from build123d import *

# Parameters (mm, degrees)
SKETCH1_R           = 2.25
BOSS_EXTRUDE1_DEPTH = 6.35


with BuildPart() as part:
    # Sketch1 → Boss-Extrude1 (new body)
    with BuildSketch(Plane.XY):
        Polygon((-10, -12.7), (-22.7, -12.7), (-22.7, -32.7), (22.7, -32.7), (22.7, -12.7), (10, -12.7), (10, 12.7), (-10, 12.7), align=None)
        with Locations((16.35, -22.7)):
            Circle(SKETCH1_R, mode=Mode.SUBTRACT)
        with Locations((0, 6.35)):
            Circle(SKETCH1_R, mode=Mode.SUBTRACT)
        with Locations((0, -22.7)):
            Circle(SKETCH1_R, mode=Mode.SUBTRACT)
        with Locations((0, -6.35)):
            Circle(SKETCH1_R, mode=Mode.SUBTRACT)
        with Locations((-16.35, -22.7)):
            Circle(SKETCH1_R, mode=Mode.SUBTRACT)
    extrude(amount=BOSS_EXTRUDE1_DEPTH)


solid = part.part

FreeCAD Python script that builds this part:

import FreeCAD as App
import Part
import Sketcher


def add_polygon(sketch, points):
    """Adds a closed chain of lines whose ends are joined by coincident constraints."""
    first, n = sketch.GeometryCount, len(points)
    for a, b in zip(points, points[1:] + points[:1]):
        sketch.addGeometry(Part.LineSegment(App.Vector(*a, 0), App.Vector(*b, 0)), False)
    for i in range(n):
        sketch.addConstraint(Sketcher.Constraint("Coincident", first + i, 2, first + (i + 1) % n, 1))

doc = App.newDocument("Part")
body = doc.addObject("PartDesign::Body", "Body")

# Sketch on XY plane
sketch1 = doc.addObject("Sketcher::SketchObject", "Sketch")
body.addObject(sketch1)
sketch1.AttachmentSupport = (doc.XY_Plane, [""])
sketch1.MapMode = "FlatFace"
add_polygon(sketch1, [(-10, -12.7), (-22.7, -12.7), (-22.7, -32.7), (22.7, -32.7), (22.7, -12.7), (10, -12.7), (10, 12.7), (-10, 12.7)])  # lines 0-7
sketch1.addGeometry(Part.Circle(App.Vector(-16.4, -22.7, 0), App.Vector(0, 0, 1), 2.2), False)  # 8
sketch1.addGeometry(Part.Circle(App.Vector(0, -22.7, 0), App.Vector(0, 0, 1), 2.2), False)  # 9
sketch1.addGeometry(Part.Circle(App.Vector(16.4, -22.7, 0), App.Vector(0, 0, 1), 2.2), False)  # 10
sketch1.addGeometry(Part.Circle(App.Vector(0, -6.3, 0), App.Vector(0, 0, 1), 2.2), False)  # 11
sketch1.addGeometry(Part.Circle(App.Vector(0, 6.3, 0), App.Vector(0, 0, 1), 2.2), False)  # 12
sketch1.addConstraint([
    Sketcher.Constraint("Horizontal", 0),
    Sketcher.Constraint("Vertical", 1),
    Sketcher.Constraint("Horizontal", 2),
    Sketcher.Constraint("Vertical", 3),
    Sketcher.Constraint("Horizontal", 4),
    Sketcher.Constraint("Vertical", 5),
    Sketcher.Constraint("Horizontal", 6),
    Sketcher.Constraint("Vertical", 7),
    Sketcher.Constraint("Equal", 8, 9),
    Sketcher.Constraint("Equal", 9, 10),
    Sketcher.Constraint("Equal", 10, 11),
    Sketcher.Constraint("Equal", 11, 12),
    Sketcher.Constraint("Symmetric", 11, 3, 12, 3, -1, 1),
    Sketcher.Constraint("Symmetric", 4, 2, 6, 2, -1, 1),
    Sketcher.Constraint("Symmetric", 8, 3, 10, 3, -2),
    Sketcher.Constraint("Symmetric", 0, 2, 3, 2, -2),
    Sketcher.Constraint("PointOnObject", 9, 3, -2),
    Sketcher.Constraint("PointOnObject", 11, 3, -2),
    Sketcher.Constraint("Horizontal", 8, 3, 9, 3),
    Sketcher.Constraint("Equal", 6, 1),
    Sketcher.Constraint("Diameter", 8, 4.5),
    Sketcher.Constraint("DistanceX", 6, 2, 6, 1, 20.0),
    Sketcher.Constraint("DistanceX", 0, 2, 0, 1, 12.7),
    Sketcher.Constraint("DistanceY", 5, 1, 5, 2, 25.4),
    Sketcher.Constraint("DistanceY", 8, 3, 0, 2, 10.0),
    Sketcher.Constraint("DistanceX", 8, 3, 10, 3, 32.7),
    Sketcher.Constraint("DistanceY", 11, 3, 12, 3, 12.7),
])
pad1 = doc.addObject("PartDesign::Pad", "Pad")
body.addObject(pad1)
pad1.Profile = sketch1
pad1.Length = 6.35

doc.recompute()
